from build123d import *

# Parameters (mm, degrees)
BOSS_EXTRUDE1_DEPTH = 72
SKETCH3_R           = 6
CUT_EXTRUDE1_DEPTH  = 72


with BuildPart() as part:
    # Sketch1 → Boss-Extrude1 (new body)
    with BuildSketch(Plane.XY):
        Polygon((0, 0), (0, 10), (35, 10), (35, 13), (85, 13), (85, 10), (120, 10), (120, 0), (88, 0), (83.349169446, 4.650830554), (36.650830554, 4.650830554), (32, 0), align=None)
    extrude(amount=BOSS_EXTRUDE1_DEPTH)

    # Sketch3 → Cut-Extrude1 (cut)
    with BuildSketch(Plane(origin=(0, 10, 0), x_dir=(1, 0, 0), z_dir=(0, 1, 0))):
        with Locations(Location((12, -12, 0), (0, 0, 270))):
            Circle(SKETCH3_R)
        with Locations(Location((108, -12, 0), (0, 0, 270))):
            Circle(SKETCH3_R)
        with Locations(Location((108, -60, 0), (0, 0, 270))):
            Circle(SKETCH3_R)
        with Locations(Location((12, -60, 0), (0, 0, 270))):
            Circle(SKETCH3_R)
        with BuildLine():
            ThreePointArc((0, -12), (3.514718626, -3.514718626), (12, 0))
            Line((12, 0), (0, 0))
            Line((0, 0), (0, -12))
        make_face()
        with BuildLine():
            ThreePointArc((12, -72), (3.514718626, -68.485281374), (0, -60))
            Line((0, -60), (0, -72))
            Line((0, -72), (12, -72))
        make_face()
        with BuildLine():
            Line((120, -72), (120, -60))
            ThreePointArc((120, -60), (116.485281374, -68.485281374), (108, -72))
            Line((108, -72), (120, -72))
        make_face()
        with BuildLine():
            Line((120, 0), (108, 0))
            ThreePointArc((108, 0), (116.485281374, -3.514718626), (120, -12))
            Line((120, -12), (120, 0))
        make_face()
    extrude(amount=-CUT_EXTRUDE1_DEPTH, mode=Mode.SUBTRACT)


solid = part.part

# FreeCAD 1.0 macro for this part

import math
import FreeCAD as App
import Part
import Sketcher
from FreeCAD import Vector

doc = App.newDocument("Part")
body = doc.addObject("PartDesign::Body", "Body")

# Sketch on XY plane
sketch1 = doc.addObject("Sketcher::SketchObject", "Sketch")
body.addObject(sketch1)
sketch1.AttachmentSupport = (doc.XY_Plane, [""])
sketch1.MapMode = "FlatFace"
sketch1.addGeometry([
    Part.LineSegment(Vector(0, 10, 0), Vector(0, 0, 0)),  # 0
    Part.LineSegment(Vector(0, 0, 0), Vector(32, 0, 0)),  # 1
    Part.LineSegment(Vector(32, 0, 0), Vector(36.7, 4.7, 0)),  # 2
    Part.LineSegment(Vector(36.7, 4.7, 0), Vector(83.3, 4.7, 0)),  # 3
    Part.LineSegment(Vector(83.3, 4.7, 0), Vector(88, 0, 0)),  # 4
    Part.LineSegment(Vector(88, 0, 0), Vector(120, 0, 0)),  # 5
    Part.LineSegment(Vector(120, 0, 0), Vector(120, 10, 0)),  # 6
    Part.LineSegment(Vector(120, 10, 0), Vector(85, 10, 0)),  # 7
    Part.LineSegment(Vector(85, 10, 0), Vector(85, 13, 0)),  # 8
    Part.LineSegment(Vector(85, 13, 0), Vector(35, 13, 0)),  # 9
    Part.LineSegment(Vector(35, 13, 0), Vector(35, 10, 0)),  # 10
    Part.LineSegment(Vector(35, 10, 0), Vector(0, 10, 0)),  # 11
], False)
sketch1.addConstraint([
    Sketcher.Constraint("Coincident", 0, 2, 1, 1),
    Sketcher.Constraint("Coincident", 1, 2, 2, 1),
    Sketcher.Constraint("Coincident", 2, 2, 3, 1),
    Sketcher.Constraint("Coincident", 3, 2, 4, 1),
    Sketcher.Constraint("Coincident", 4, 2, 5, 1),
    Sketcher.Constraint("Coincident", 5, 2, 6, 1),
    Sketcher.Constraint("Coincident", 6, 2, 7, 1),
    Sketcher.Constraint("Coincident", 7, 2, 8, 1),
    Sketcher.Constraint("Coincident", 8, 2, 9, 1),
    Sketcher.Constraint("Coincident", 9, 2, 10, 1),
    Sketcher.Constraint("Coincident", 10, 2, 11, 1),
    Sketcher.Constraint("Coincident", 11, 2, 0, 1),
    Sketcher.Constraint("Vertical", 0),
    Sketcher.Constraint("Horizontal", 1),
    Sketcher.Constraint("Horizontal", 3),
    Sketcher.Constraint("Horizontal", 5),
    Sketcher.Constraint("Vertical", 6),
    Sketcher.Constraint("Horizontal", 7),
    Sketcher.Constraint("Vertical", 8),
    Sketcher.Constraint("Horizontal", 9),
    Sketcher.Constraint("Vertical", 10),
    Sketcher.Constraint("Horizontal", 11),
    Sketcher.Constraint("Coincident", 0, 2, -1, 1),
    Sketcher.Constraint("PointOnObject", 4, 2, -1),
    Sketcher.Constraint("Perpendicular", 2, 4),
    Sketcher.Constraint("Horizontal", 7, 2, 10, 2),
    Sketcher.Constraint("Equal", 1, 5),
    Sketcher.Constraint("Equal", 7, 11),
    Sketcher.Constraint("Equal", 2, 4),
    Sketcher.Constraint("DistanceX", 1, 1, 1, 2, 32.0),
    Sketcher.Constraint("DistanceX", 7, 2, 7, 1, 35.0),
    Sketcher.Constraint("DistanceX", 9, 2, 9, 1, 50.0),
    Sketcher.Constraint("DistanceY", 0, 2, 0, 1, 10.0),
    Sketcher.Constraint("DistanceY", 8, 1, 8, 2, 3.0),
    Sketcher.Constraint("DistanceX", 3, 1, 3, 2, 46.698339),
])
pad1 = doc.addObject("PartDesign::Pad", "Pad")
body.addObject(pad1)
pad1.Profile = sketch1
pad1.Length = 72

# Sketch on XZ plane
sketch2 = doc.addObject("Sketcher::SketchObject", "Sketch001")
body.addObject(sketch2)
sketch2.AttachmentSupport = (doc.XZ_Plane, [""])
sketch2.MapMode = "FlatFace"
sketch2.AttachmentOffset = App.Placement(Vector(0, 0, -10), App.Rotation())
sketch2.addGeometry([
    Part.Circle(Vector(12, 12, 0), Vector(0, 0, 1), 6),  # 0
    Part.Circle(Vector(108, 12, 0), Vector(0, 0, 1), 6),  # 1
    Part.Circle(Vector(108, 60, 0), Vector(0, 0, 1), 6),  # 2
    Part.Circle(Vector(12, 60, 0), Vector(0, 0, 1), 6),  # 3
    Part.ArcOfCircle(Part.Circle(Vector(12, 12, 0), Vector(0, 0, 1), 12), math.radians(-180), math.radians(-90)),  # 4
    Part.LineSegment(Vector(12, 0, 0), Vector(0, 0, 0)),  # 5
    Part.LineSegment(Vector(0, 0, 0), Vector(0, 12, 0)),  # 6
    Part.ArcOfCircle(Part.Circle(Vector(12, 60, 0), Vector(0, 0, 1), 12), math.radians(90), math.radians(180)),  # 7
    Part.LineSegment(Vector(0, 60, 0), Vector(0, 72, 0)),  # 8
    Part.LineSegment(Vector(0, 72, 0), Vector(12, 72, 0)),  # 9
    Part.LineSegment(Vector(120, 72, 0), Vector(120, 60, 0)),  # 10
    Part.ArcOfCircle(Part.Circle(Vector(108, 60, 0), Vector(0, 0, 1), 12), math.radians(0), math.radians(90)),  # 11
    Part.LineSegment(Vector(108, 72, 0), Vector(120, 72, 0)),  # 12
    Part.LineSegment(Vector(120, 0, 0), Vector(108, 0, 0)),  # 13
    Part.ArcOfCircle(Part.Circle(Vector(108, 12, 0), Vector(0, 0, 1), 12), math.radians(-90), math.radians(0)),  # 14
    Part.LineSegment(Vector(120, 12, 0), Vector(120, 0, 0)),  # 15
], False)
sketch2.addConstraint([
    Sketcher.Constraint("Tangent", 4, 2, 5, 1),
    Sketcher.Constraint("Coincident", 5, 2, 6, 1),
    Sketcher.Constraint("Tangent", 6, 2, 4, 1),
    Sketcher.Constraint("Tangent", 7, 2, 8, 1),
    Sketcher.Constraint("Coincident", 8, 2, 9, 1),
    Sketcher.Constraint("Tangent", 9, 2, 7, 1),
    Sketcher.Constraint("Tangent", 10, 2, 11, 1),
    Sketcher.Constraint("Tangent", 11, 2, 12, 1),
    Sketcher.Constraint("Coincident", 12, 2, 10, 1),
    Sketcher.Constraint("Tangent", 13, 2, 14, 1),
    Sketcher.Constraint("Tangent", 14, 2, 15, 1),
    Sketcher.Constraint("Coincident", 15, 2, 13, 1),
    Sketcher.Constraint("Horizontal", 5),
    Sketcher.Constraint("Vertical", 6),
    Sketcher.Constraint("Vertical", 8),
    Sketcher.Constraint("Horizontal", 9),
    Sketcher.Constraint("Vertical", 10),
    Sketcher.Constraint("Horizontal", 12),
    Sketcher.Constraint("Horizontal", 13),
    Sketcher.Constraint("Vertical", 15),
    Sketcher.Constraint("Coincident", 5, 2, -1, 1),
    Sketcher.Constraint("Coincident", 4, 3, 0, 3),
    Sketcher.Constraint("Coincident", 7, 3, 3, 3),
    Sketcher.Constraint("Coincident", 11, 3, 2, 3),
    Sketcher.Constraint("Coincident", 14, 3, 1, 3),
    Sketcher.Constraint("Equal", 0, 1),
    Sketcher.Constraint("Equal", 1, 2),
    Sketcher.Constraint("Equal", 2, 3),
    Sketcher.Constraint("Equal", 4, 7),
    Sketcher.Constraint("Equal", 7, 11),
    Sketcher.Constraint("Equal", 11, 14),
    Sketcher.Constraint("PointOnObject", 7, 2, -2),
    Sketcher.Constraint("PointOnObject", 13, 2, -1),
    Sketcher.Constraint("Horizontal", 2, 3, 3, 3),
    Sketcher.Constraint("Vertical", 1, 3, 2, 3),
    Sketcher.Constraint("Diameter", 0, 12.0),
    Sketcher.Constraint("Radius", 4, 12.0),
    Sketcher.Constraint("DistanceX", -1, 1, 1, 3, 108.0),
    Sketcher.Constraint("DistanceY", -1, 1, 2, 3, 60.0),
])
pocket1 = doc.addObject("PartDesign::Pocket", "Pocket")
body.addObject(pocket1)
pocket1.Profile = sketch2
pocket1.Length = 72
pocket1.Reversed = True

doc.recompute()
